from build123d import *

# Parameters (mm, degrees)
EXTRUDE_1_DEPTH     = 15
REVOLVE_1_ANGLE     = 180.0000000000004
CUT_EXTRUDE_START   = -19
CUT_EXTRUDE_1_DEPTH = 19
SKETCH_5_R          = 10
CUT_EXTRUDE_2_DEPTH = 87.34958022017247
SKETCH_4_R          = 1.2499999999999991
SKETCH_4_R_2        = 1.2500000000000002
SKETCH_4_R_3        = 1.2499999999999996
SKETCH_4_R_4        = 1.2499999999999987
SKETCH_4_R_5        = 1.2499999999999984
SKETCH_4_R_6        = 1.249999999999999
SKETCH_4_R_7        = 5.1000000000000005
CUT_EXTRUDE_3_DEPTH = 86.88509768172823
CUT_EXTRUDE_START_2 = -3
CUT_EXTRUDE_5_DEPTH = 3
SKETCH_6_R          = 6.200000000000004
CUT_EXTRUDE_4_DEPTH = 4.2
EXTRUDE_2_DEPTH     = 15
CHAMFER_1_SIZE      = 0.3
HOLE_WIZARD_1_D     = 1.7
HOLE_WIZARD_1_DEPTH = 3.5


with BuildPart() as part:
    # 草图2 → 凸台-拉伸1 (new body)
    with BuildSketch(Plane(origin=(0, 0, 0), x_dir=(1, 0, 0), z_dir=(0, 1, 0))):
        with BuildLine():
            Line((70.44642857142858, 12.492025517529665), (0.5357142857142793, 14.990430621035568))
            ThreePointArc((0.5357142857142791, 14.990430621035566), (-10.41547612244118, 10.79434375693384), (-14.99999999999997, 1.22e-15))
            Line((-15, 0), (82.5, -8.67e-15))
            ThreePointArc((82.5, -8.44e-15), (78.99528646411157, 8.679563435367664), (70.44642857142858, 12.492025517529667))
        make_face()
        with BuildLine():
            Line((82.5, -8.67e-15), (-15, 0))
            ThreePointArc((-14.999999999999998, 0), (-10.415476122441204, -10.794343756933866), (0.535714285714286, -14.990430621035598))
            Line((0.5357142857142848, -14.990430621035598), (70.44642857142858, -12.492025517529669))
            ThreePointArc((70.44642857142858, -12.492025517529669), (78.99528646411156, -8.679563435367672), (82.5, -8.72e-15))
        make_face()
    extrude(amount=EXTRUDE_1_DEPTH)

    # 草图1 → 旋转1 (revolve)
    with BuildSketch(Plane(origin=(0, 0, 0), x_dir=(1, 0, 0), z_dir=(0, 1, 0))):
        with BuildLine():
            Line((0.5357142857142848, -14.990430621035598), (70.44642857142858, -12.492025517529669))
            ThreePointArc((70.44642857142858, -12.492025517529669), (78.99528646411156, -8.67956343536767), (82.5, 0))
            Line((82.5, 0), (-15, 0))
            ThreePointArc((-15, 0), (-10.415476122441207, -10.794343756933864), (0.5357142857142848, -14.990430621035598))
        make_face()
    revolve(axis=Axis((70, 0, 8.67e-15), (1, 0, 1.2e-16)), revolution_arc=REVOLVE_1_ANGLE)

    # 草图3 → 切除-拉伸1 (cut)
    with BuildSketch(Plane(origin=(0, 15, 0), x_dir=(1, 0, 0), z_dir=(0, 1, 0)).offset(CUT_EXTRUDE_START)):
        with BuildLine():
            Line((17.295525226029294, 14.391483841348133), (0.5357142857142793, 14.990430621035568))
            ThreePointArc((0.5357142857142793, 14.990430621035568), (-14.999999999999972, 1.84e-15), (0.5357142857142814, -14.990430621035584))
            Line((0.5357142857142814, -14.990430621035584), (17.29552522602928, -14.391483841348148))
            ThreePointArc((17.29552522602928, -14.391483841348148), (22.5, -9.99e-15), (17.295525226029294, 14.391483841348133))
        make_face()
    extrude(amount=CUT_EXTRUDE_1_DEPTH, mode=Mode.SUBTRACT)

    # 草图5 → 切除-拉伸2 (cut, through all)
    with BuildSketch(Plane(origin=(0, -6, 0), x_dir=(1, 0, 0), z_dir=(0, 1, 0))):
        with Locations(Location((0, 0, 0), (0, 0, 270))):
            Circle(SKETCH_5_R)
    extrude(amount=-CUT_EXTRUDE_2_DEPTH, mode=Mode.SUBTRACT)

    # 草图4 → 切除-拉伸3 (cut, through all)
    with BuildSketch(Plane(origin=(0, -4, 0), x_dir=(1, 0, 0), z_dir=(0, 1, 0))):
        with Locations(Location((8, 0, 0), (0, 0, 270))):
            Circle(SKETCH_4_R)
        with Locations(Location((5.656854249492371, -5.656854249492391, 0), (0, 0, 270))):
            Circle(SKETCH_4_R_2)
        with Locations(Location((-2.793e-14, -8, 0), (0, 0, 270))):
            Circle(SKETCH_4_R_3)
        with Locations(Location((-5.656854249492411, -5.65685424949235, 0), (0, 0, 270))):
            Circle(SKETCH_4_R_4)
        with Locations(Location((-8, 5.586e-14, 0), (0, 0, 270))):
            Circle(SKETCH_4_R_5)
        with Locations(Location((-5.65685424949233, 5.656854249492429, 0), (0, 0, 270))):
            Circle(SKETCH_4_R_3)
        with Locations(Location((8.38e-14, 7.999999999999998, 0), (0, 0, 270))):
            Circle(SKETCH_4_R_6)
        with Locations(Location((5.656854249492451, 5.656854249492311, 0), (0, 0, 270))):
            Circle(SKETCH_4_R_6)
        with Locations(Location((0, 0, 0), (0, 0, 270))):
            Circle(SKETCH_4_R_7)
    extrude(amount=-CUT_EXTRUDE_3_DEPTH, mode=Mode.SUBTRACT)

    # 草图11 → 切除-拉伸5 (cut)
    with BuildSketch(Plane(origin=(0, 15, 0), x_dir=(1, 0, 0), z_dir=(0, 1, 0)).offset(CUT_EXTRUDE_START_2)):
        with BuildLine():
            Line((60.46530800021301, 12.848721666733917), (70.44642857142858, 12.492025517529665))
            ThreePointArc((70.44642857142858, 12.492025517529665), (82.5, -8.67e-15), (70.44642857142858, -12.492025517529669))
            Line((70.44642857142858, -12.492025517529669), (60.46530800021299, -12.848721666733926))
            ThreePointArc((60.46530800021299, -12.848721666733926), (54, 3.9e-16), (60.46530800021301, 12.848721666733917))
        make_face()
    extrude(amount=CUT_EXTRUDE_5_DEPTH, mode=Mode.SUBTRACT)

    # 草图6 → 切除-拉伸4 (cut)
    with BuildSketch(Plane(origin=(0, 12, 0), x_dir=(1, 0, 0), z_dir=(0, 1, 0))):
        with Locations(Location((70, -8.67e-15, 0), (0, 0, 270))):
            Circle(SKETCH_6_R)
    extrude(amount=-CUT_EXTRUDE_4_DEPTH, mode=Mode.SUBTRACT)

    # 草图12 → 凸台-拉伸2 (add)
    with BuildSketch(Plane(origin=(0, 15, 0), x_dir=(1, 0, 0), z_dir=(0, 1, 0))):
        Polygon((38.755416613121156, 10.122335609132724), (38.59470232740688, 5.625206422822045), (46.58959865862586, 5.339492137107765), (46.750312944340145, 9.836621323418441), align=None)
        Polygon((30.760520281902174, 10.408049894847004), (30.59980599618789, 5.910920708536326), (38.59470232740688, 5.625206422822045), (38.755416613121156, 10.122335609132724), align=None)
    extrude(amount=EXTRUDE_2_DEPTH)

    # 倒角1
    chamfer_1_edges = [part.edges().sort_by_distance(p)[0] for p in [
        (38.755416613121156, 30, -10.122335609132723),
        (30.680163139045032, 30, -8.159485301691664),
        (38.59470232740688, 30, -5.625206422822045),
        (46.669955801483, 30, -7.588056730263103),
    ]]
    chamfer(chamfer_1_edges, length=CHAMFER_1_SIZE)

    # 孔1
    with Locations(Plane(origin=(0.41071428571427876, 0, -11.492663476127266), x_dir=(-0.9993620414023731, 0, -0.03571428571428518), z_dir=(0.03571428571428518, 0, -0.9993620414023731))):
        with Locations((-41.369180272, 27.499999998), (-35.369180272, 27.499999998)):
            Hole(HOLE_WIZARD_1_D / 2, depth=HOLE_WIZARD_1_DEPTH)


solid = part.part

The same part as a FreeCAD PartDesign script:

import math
import FreeCAD as App
import Part
import Sketcher


def edges_at(feature, points):
    """Names of the edges that pass closest to the given points."""
    edges = feature.Shape.Edges
    near = lambda p: min(range(len(edges)), key=lambda i: edges[i].distToShape(Part.Vertex(*p))[0])
    return sorted({f"Edge{near(p) + 1}" for p in points})

doc = App.newDocument("Part")
body = doc.addObject("PartDesign::Body", "Body")

# Sketch on XZ plane
sketch1 = body.newObject("Sketcher::SketchObject", "Sketch")
sketch1.AttachmentSupport = (doc.getObject("XZ_Plane"), [""])
sketch1.MapMode = "FlatFace"
sketch1.addGeometry([
    Part.LineSegment(App.Vector(70, -12, 0), App.Vector(1, -15, 0)),
    Part.ArcOfCircle(Part.Circle(App.Vector(0, 0, 0), App.Vector(0, 0, 1), 15), math.radians(88), math.radians(272)),
    Part.LineSegment(App.Vector(1, 15, 0), App.Vector(70, 12, 0)),
    Part.ArcOfCircle(Part.Circle(App.Vector(70, 0, 0), App.Vector(0, 0, 1), 12), math.radians(-88), math.radians(88)),
], False)
sketch1.addConstraint([
    Sketcher.Constraint("Tangent", 0, 2, 1, 2),
    Sketcher.Constraint("Tangent", 1, 1, 2, 1),
    Sketcher.Constraint("Tangent", 2, 2, 3, 2),
    Sketcher.Constraint("Tangent", 3, 1, 0, 1),
    Sketcher.Constraint("Coincident", 1, 3, -1, 1),
    Sketcher.Constraint("PointOnObject", 3, 3, -1),
    Sketcher.Constraint("Radius", 1, 15.0),
    Sketcher.Constraint("Radius", 3, 12.5),
    Sketcher.Constraint("DistanceX", -1, 1, 3, 3, 70.0),
])
pad1 = body.newObject("PartDesign::Pad", "Pad")
pad1.Profile = sketch1
pad1.Length = 15
pad1.Reversed = True

# Sketch on XZ plane
sketch2 = body.newObject("Sketcher::SketchObject", "Sketch001")
sketch2.AttachmentSupport = (doc.getObject("XZ_Plane"), [""])
sketch2.MapMode = "FlatFace"
sketch2.addGeometry([
    Part.LineSegment(App.Vector(1, 15, 0), App.Vector(70, 12, 0)),
    Part.ArcOfCircle(Part.Circle(App.Vector(70, 0, 0), App.Vector(0, 0, 1), 12), math.radians(0), math.radians(88)),
    Part.LineSegment(App.Vector(82, 0, 0), App.Vector(-15, 0, 0)),
    Part.ArcOfCircle(Part.Circle(App.Vector(0, 0, 0), App.Vector(0, 0, 1), 15), math.radians(88), math.radians(180)),
], False)
sketch2.addConstraint([
    Sketcher.Constraint("Tangent", 0, 2, 1, 2),
    Sketcher.Constraint("Coincident", 1, 1, 2, 1),
    Sketcher.Constraint("Coincident", 2, 2, 3, 2),
    Sketcher.Constraint("Tangent", 3, 1, 0, 1),
    Sketcher.Constraint("Horizontal", 2),
    Sketcher.Constraint("Coincident", 3, 3, -1, 1),
    Sketcher.Constraint("PointOnObject", 1, 3, -1),
    Sketcher.Constraint("PointOnObject", 1, 1, -1),
    Sketcher.Constraint("Radius", 3, 15.0),
    Sketcher.Constraint("Radius", 1, 12.5),
    Sketcher.Constraint("DistanceX", 2, 2, 2, 1, 97.5),
])
revolution = body.newObject("PartDesign::Revolution", "Revolution")
revolution.Profile = sketch2
revolution.ReferenceAxis = (sketch2, ["H_Axis"])
revolution.Angle = 180

# Sketch on XZ plane
sketch3 = body.newObject("Sketcher::SketchObject", "Sketch002")
sketch3.AttachmentSupport = (doc.getObject("XZ_Plane"), [""])
sketch3.MapMode = "FlatFace"
sketch3.AttachmentOffset = App.Placement(App.Vector(0, 0, 4), App.Rotation())
sketch3.addGeometry([
    Part.LineSegment(App.Vector(17, -14, 0), App.Vector(1, -15, 0)),
    Part.ArcOfCircle(Part.Circle(App.Vector(0, 0, 0), App.Vector(0, 0, 1), 15), math.radians(88), math.radians(272)),
    Part.LineSegment(App.Vector(1, 15, 0), App.Vector(17, 14, 0)),
    Part.ArcOfCircle(Part.Circle(App.Vector(0, 0, 0), App.Vector(0, 0, 1), 22), math.radians(-40), math.radians(40)),
], False)
sketch3.addConstraint([
    Sketcher.Constraint("Tangent", 0, 2, 1, 2),
    Sketcher.Constraint("Tangent", 1, 1, 2, 1),
    Sketcher.Constraint("Coincident", 2, 2, 3, 2),
    Sketcher.Constraint("Coincident", 3, 1, 0, 1),
    Sketcher.Constraint("Coincident", 1, 3, -1, 1),
    Sketcher.Constraint("Coincident", 3, 3, -1, 1),
    Sketcher.Constraint("Vertical", 0, 2, 1, 1),
    Sketcher.Constraint("Radius", 1, 15.0),
    Sketcher.Constraint("Radius", 3, 22.5),
    Sketcher.Constraint("DistanceY", 0, 2, -1, 1, 14.990431),
])
pocket1 = body.newObject("PartDesign::Pocket", "Pocket")
pocket1.Profile = sketch3
pocket1.Length = 19

# Sketch on XZ plane
sketch4 = body.newObject("Sketcher::SketchObject", "Sketch003")
sketch4.AttachmentSupport = (doc.getObject("XZ_Plane"), [""])
sketch4.MapMode = "FlatFace"
sketch4.AttachmentOffset = App.Placement(App.Vector(0, 0, 6), App.Rotation())
sketch4.addGeometry(Part.Circle(App.Vector(0, 0, 0), App.Vector(0, 0, 1), 10), False)
sketch4.addConstraint([
    Sketcher.Constraint("Coincident", 0, 3, -1, 1),
    Sketcher.Constraint("Diameter", 0, 20.0),
])
pocket2 = body.newObject("PartDesign::Pocket", "Pocket001")
pocket2.Profile = sketch4
pocket2.Type = "ThroughAll"
pocket2.Reversed = True

# Sketch on XZ plane
sketch5 = body.newObject("Sketcher::SketchObject", "Sketch004")
sketch5.AttachmentSupport = (doc.getObject("XZ_Plane"), [""])
sketch5.MapMode = "FlatFace"
sketch5.AttachmentOffset = App.Placement(App.Vector(0, 0, 4), App.Rotation())
sketch5.addGeometry([
    Part.Circle(App.Vector(8, 0, 0), App.Vector(0, 0, 1), 1.2),  # 0
    Part.Circle(App.Vector(5.7, 5.7, 0), App.Vector(0, 0, 1), 1.2),  # 1
    Part.Circle(App.Vector(0, 8, 0), App.Vector(0, 0, 1), 1.2),  # 2
    Part.Circle(App.Vector(-5.7, 5.7, 0), App.Vector(0, 0, 1), 1.2),  # 3
    Part.Circle(App.Vector(-8, 0, 0), App.Vector(0, 0, 1), 1.2),  # 4
    Part.Circle(App.Vector(-5.7, -5.7, 0), App.Vector(0, 0, 1), 1.2),  # 5
    Part.Circle(App.Vector(0, -8, 0), App.Vector(0, 0, 1), 1.2),  # 6
    Part.Circle(App.Vector(5.7, -5.7, 0), App.Vector(0, 0, 1), 1.2),  # 7
    Part.Circle(App.Vector(0, 0, 0), App.Vector(0, 0, 1), 5.1),  # 8
], False)
sketch5.addConstraint([
    Sketcher.Constraint("Coincident", 8, 3, -1, 1),
    Sketcher.Constraint("Equal", 0, 1),
    Sketcher.Constraint("Equal", 1, 2),
    Sketcher.Constraint("Equal", 2, 3),
    Sketcher.Constraint("Equal", 3, 4),
    Sketcher.Constraint("Equal", 4, 5),
    Sketcher.Constraint("Equal", 5, 6),
    Sketcher.Constraint("Equal", 6, 7),
    Sketcher.Constraint("Symmetric", 0, 3, 4, 3, -1, 1),
    Sketcher.Constraint("Symmetric", 1, 3, 5, 3, -1, 1),
    Sketcher.Constraint("Symmetric", 2, 3, 6, 3, -1, 1),
    Sketcher.Constraint("Symmetric", 3, 3, 7, 3, -1, 1),
    Sketcher.Constraint("Symmetric", 1, 3, 3, 3, -2),
    Sketcher.Constraint("PointOnObject", 0, 3, -1),
    Sketcher.Constraint("PointOnObject", 2, 3, -2),
    Sketcher.Constraint("Diameter", 0, 2.5),
    Sketcher.Constraint("Diameter", 8, 10.2),
    Sketcher.Constraint("DistanceX", -1, 1, 0, 3, 8.0),
    Sketcher.Constraint("DistanceY", -1, 1, 2, 3, 8.0),
    Sketcher.Constraint("DistanceX", 3, 3, 1, 3, 11.313708),
    Sketcher.Constraint("DistanceY", 5, 3, 3, 3, 11.313708),
])
pocket3 = body.newObject("PartDesign::Pocket", "Pocket002")
pocket3.Profile = sketch5
pocket3.Type = "ThroughAll"
pocket3.Reversed = True

# Sketch on XZ plane
sketch6 = body.newObject("Sketcher::SketchObject", "Sketch005")
sketch6.AttachmentSupport = (doc.getObject("XZ_Plane"), [""])
sketch6.MapMode = "FlatFace"
sketch6.AttachmentOffset = App.Placement(App.Vector(0, 0, -12), App.Rotation())
sketch6.addGeometry([
    Part.LineSegment(App.Vector(70, -12, 0), App.Vector(60, -13, 0)),
    Part.ArcOfCircle(Part.Circle(App.Vector(70, 0, 0), App.Vector(0, 0, 1), 16), math.radians(127), math.radians(233)),
    Part.LineSegment(App.Vector(60, 13, 0), App.Vector(70, 12, 0)),
    Part.ArcOfCircle(Part.Circle(App.Vector(70, 0, 0), App.Vector(0, 0, 1), 12), math.radians(-88), math.radians(88)),
], False)
sketch6.addConstraint([
    Sketcher.Constraint("Coincident", 0, 2, 1, 2),
    Sketcher.Constraint("Coincident", 1, 1, 2, 1),
    Sketcher.Constraint("Tangent", 2, 2, 3, 2),
    Sketcher.Constraint("Tangent", 3, 1, 0, 1),
    Sketcher.Constraint("Coincident", 3, 3, 1, 3),
    Sketcher.Constraint("Symmetric", 0, 2, 1, 1, -1),
    Sketcher.Constraint("Radius", 1, 16.0),
    Sketcher.Constraint("Radius", 3, 12.5),
    Sketcher.Constraint("DistanceX", -1, 1, 1, 3, 70.0),
    Sketcher.Constraint("DistanceY", 0, 2, -1, 1, 12.848722),
])
pocket4 = body.newObject("PartDesign::Pocket", "Pocket003")
pocket4.Profile = sketch6
pocket4.Length = 3

# Sketch on XZ plane
sketch7 = body.newObject("Sketcher::SketchObject", "Sketch006")
sketch7.AttachmentSupport = (doc.getObject("XZ_Plane"), [""])
sketch7.MapMode = "FlatFace"
sketch7.AttachmentOffset = App.Placement(App.Vector(0, 0, -12), App.Rotation())
sketch7.addGeometry(Part.Circle(App.Vector(70, 0, 0), App.Vector(0, 0, 1), 6), False)
sketch7.addConstraint([
    Sketcher.Constraint("PointOnObject", 0, 3, -1),
    Sketcher.Constraint("Diameter", 0, 12.4),
    Sketcher.Constraint("DistanceX", -1, 1, 0, 3, 70.0),
])
pocket5 = body.newObject("PartDesign::Pocket", "Pocket004")
pocket5.Profile = sketch7
pocket5.Length = 4.2
pocket5.Reversed = True

# Sketch on XZ plane
sketch8 = body.newObject("Sketcher::SketchObject", "Sketch007")
sketch8.AttachmentSupport = (doc.getObject("XZ_Plane"), [""])
sketch8.MapMode = "FlatFace"
sketch8.AttachmentOffset = App.Placement(App.Vector(0, 0, -15), App.Rotation())
sketch8.addGeometry([
    Part.LineSegment(App.Vector(46.6, -5.3, 0), App.Vector(46.8, -9.8, 0)),
    Part.LineSegment(App.Vector(46.8, -9.8, 0), App.Vector(30.8, -10.4, 0)),
    Part.LineSegment(App.Vector(30.8, -10.4, 0), App.Vector(30.6, -5.9, 0)),
    Part.LineSegment(App.Vector(30.6, -5.9, 0), App.Vector(46.6, -5.3, 0)),
], False)
sketch8.addConstraint([
    Sketcher.Constraint("Coincident", 0, 2, 1, 1),
    Sketcher.Constraint("Coincident", 1, 2, 2, 1),
    Sketcher.Constraint("Coincident", 2, 2, 3, 1),
    Sketcher.Constraint("Coincident", 3, 2, 0, 1),
    Sketcher.Constraint("Perpendicular", 0, 1),
    Sketcher.Constraint("Perpendicular", 1, 2),
    Sketcher.Constraint("Perpendicular", 2, 3),
    Sketcher.Constraint("Distance", 1, 16.0),
    Sketcher.Constraint("Distance", 0, 4.5),
    Sketcher.Constraint("DistanceX", -1, 1, 3, 2, 46.589599),
    Sketcher.Constraint("DistanceY", 0, 2, 2, 2, 3.925701),
    Sketcher.Constraint("DistanceY", 0, 2, -1, 1, 9.836621),
])
pad2 = body.newObject("PartDesign::Pad", "Pad001")
pad2.Profile = sketch8
pad2.Length = 15
pad2.Reversed = True
doc.recompute()

chamfer = body.newObject("PartDesign::Chamfer", "Chamfer")
chamfer.Base = (pad2, edges_at(pad2, [
    (38.755, 30, -10.122),
    (30.68, 30, -8.159),
    (38.595, 30, -5.625),
    (46.67, 30, -7.588),
]))
chamfer.Size = 0.3

# Sketch on an angled plane
sketch9 = body.newObject("Sketcher::SketchObject", "Sketch008")
sketch9.Placement = App.Placement(App.Vector(0.410714, 0, -11.492663), App.Rotation(App.Vector(-0.999362041, 0, -0.035714286), App.Vector(0, 0.999999999, 0), App.Vector(0.035714286, 0, -0.999362041), "ZXY"))
sketch9.addGeometry([
    Part.Circle(App.Vector(-41.4, 27.5, 0), App.Vector(0, 0, 1), 0.8),
    Part.Circle(App.Vector(-35.4, 27.5, 0), App.Vector(0, 0, 1), 0.8),
], False)
sketch9.addConstraint([
    Sketcher.Constraint("Equal", 0, 1),
    Sketcher.Constraint("Horizontal", 0, 3, 1, 3),
    Sketcher.Constraint("Diameter", 0, 1.7),
    Sketcher.Constraint("DistanceX", 0, 3, 1, 3, 6.0),
    Sketcher.Constraint("DistanceY", -1, 1, 0, 3, 27.5),
    Sketcher.Constraint("DistanceX", 0, 3, -1, 1, 41.36918),
])
doc.recompute()
hole = body.newObject("PartDesign::Hole", "Hole")
hole.Profile = sketch9
hole.ThreadType = "None"
hole.Diameter = 1.7
hole.DepthType = "Dimension"
hole.Depth = 3.5
hole.DrillPoint = "Flat"

doc.recompute()
